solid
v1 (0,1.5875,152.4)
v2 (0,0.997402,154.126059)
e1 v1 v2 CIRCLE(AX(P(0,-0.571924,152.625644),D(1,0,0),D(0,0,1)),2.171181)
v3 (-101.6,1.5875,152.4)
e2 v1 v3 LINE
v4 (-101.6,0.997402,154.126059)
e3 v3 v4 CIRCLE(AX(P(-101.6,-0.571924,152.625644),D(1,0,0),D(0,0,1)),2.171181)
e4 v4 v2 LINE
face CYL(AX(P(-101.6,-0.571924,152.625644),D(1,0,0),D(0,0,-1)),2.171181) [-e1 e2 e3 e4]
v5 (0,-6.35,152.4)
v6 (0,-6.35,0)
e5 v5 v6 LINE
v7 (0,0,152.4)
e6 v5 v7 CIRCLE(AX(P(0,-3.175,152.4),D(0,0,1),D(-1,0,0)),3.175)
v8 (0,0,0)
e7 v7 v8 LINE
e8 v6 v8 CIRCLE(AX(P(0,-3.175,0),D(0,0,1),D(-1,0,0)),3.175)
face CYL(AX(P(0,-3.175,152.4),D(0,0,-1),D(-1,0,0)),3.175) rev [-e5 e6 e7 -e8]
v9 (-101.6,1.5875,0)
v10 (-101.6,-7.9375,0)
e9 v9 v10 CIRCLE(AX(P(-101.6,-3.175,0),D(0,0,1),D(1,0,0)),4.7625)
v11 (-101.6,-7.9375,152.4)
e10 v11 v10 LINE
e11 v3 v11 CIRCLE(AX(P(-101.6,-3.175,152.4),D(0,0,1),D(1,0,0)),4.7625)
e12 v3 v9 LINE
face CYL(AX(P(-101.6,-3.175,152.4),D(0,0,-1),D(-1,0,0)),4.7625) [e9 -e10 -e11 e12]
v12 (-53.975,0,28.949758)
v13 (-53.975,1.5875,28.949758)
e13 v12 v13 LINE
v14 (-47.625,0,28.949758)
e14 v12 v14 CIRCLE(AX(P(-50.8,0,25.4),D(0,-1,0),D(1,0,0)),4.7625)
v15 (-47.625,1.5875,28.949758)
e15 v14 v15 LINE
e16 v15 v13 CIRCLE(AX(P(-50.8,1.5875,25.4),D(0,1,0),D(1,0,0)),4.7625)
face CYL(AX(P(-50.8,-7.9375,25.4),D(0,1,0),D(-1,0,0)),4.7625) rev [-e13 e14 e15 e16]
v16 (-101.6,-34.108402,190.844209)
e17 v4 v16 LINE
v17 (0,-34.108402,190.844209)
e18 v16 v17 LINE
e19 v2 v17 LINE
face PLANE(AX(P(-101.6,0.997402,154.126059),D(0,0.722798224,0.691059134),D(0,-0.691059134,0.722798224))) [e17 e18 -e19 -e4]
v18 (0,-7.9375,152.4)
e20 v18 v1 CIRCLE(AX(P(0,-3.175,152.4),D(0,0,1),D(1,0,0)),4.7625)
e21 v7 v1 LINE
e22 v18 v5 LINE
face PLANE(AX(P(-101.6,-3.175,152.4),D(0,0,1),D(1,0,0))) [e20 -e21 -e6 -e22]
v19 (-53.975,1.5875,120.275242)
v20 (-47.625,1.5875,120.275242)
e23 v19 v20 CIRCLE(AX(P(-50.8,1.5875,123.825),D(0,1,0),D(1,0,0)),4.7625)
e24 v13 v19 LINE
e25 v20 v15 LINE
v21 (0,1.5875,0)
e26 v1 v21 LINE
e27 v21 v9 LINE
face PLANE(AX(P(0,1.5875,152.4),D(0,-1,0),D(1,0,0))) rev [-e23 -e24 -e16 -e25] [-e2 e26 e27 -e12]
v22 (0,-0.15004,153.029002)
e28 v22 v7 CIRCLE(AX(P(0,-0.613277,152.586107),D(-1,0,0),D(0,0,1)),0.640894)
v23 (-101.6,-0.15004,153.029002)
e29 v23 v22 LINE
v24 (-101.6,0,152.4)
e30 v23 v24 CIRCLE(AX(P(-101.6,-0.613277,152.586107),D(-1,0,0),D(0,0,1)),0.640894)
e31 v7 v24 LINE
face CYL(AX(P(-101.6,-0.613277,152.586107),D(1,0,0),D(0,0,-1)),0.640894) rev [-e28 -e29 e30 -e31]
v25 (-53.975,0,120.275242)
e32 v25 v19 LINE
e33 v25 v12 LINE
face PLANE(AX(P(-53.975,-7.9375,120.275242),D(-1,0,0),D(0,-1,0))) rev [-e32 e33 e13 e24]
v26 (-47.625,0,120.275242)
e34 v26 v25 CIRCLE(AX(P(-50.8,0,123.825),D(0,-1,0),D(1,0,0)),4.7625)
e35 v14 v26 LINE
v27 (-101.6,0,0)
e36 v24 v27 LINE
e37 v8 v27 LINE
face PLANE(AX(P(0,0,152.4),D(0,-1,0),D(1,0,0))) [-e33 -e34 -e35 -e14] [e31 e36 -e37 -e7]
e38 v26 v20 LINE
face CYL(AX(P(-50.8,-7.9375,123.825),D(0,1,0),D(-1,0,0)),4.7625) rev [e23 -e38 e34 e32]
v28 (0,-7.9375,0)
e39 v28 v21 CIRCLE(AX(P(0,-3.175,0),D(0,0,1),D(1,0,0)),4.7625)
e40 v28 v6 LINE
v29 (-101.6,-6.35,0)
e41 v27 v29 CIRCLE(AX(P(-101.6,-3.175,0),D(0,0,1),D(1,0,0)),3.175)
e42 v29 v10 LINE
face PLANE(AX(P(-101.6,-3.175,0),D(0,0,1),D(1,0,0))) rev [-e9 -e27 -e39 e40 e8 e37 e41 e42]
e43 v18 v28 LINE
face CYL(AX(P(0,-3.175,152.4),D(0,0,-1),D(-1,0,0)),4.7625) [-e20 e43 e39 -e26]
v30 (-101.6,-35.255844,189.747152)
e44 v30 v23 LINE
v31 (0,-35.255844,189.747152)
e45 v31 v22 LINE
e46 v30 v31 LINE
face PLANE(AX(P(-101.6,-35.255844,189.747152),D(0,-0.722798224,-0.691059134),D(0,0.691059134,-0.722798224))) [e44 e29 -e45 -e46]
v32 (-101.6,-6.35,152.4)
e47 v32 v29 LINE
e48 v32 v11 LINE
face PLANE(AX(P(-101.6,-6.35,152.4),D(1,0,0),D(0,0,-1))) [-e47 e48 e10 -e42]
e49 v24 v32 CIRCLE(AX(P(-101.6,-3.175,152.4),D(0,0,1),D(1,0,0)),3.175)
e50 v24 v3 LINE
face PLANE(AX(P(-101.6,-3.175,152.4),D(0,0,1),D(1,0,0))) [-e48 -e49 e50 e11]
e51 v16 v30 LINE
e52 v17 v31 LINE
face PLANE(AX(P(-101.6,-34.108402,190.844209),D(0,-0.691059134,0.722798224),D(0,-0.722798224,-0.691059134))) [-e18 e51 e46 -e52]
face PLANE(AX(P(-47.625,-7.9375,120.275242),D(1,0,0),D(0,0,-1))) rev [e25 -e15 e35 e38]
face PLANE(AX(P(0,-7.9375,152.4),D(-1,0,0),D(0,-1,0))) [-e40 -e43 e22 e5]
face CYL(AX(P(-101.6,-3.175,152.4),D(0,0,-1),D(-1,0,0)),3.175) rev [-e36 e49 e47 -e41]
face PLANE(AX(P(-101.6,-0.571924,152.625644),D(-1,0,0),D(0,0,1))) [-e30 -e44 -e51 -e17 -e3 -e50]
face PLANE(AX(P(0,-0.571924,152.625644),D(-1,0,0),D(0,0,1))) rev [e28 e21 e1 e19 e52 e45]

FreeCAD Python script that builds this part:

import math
import FreeCAD as App
import Part
import Sketcher
from FreeCAD import Vector
Q = App.Units.Quantity

doc = App.newDocument("Part")
body = doc.addObject("PartDesign::Body", "Body")

sketch1 = body.newObject("Sketcher::SketchObject", "Sketch")
sketch1.AttachmentSupport = (doc.getObject("XY_Plane"), [""])
sketch1.MapMode = "FlatFace"
sketch1.addGeometry(Part.ArcOfCircle(Part.Circle(Vector(0, -3.2, 0), Vector(0, 0, 1), 3.2), math.radians(-90), math.radians(90)), False)
sketch1.addGeometry(Part.LineSegment(Vector(0, -6.3, 0), Vector(0, -7.9, 0)), False)
sketch1.addGeometry(Part.ArcOfCircle(Part.Circle(Vector(0, -3.2, 0), Vector(0, 0, 1), 4.8), math.radians(-90), math.radians(90)), False)
sketch1.addGeometry(Part.LineSegment(Vector(0, 1.6, 0), Vector(-101.6, 1.6, 0)), False)
sketch1.addGeometry(Part.ArcOfCircle(Part.Circle(Vector(-101.6, -3.2, 0), Vector(0, 0, 1), 4.8), math.radians(90), math.radians(270)), False)
sketch1.addGeometry(Part.LineSegment(Vector(-101.6, -7.9, 0), Vector(-101.6, -6.3, 0)), False)
sketch1.addGeometry(Part.ArcOfCircle(Part.Circle(Vector(-101.6, -3.2, 0), Vector(0, 0, 1), 3.2), math.radians(90), math.radians(270)), False)
sketch1.addGeometry(Part.LineSegment(Vector(-101.6, 0, 0), Vector(0, 0, 0)), False)
sketch1.addConstraint(Sketcher.Constraint("Coincident", 0, 1, 1, 1))
sketch1.addConstraint(Sketcher.Constraint("Coincident", 1, 2, 2, 1))
sketch1.addConstraint(Sketcher.Constraint("Tangent", 2, 2, 3, 1))
sketch1.addConstraint(Sketcher.Constraint("Tangent", 3, 2, 4, 1))
sketch1.addConstraint(Sketcher.Constraint("Coincident", 4, 2, 5, 1))
sketch1.addConstraint(Sketcher.Constraint("Coincident", 5, 2, 6, 2))
sketch1.addConstraint(Sketcher.Constraint("Tangent", 6, 1, 7, 1))
sketch1.addConstraint(Sketcher.Constraint("Tangent", 7, 2, 0, 2))
sketch1.addConstraint(Sketcher.Constraint("Vertical", 1))
sketch1.addConstraint(Sketcher.Constraint("Horizontal", 3))
sketch1.addConstraint(Sketcher.Constraint("Vertical", 5))
sketch1.addConstraint(Sketcher.Constraint("Horizontal", 7))
sketch1.addConstraint(Sketcher.Constraint("Coincident", 7, 2, -1, 1))
sketch1.addConstraint(Sketcher.Constraint("Coincident", 2, 3, 0, 3))
sketch1.addConstraint(Sketcher.Constraint("Coincident", 6, 3, 4, 3))
sketch1.addConstraint(Sketcher.Constraint("Equal", 2, 4))
sketch1.addConstraint(Sketcher.Constraint("PointOnObject", 0, 1, -2))
sketch1.addConstraint(Sketcher.Constraint("Vertical", 3, 2, 4, 2))
sketch1.addConstraint(Sketcher.Constraint("DistanceX", 3, 2, 3, 1, Q("4 in")))
sketch1.addConstraint(Sketcher.Constraint("Radius", 0, Q("0.125 in")))
sketch1.addConstraint(Sketcher.Constraint("Radius", 2, Q("0.1875 in")))
pad1 = body.newObject("PartDesign::Pad", "Pad")
pad1.Profile = sketch1
pad1.Length = Q("6 in")

sketch2 = body.newObject("Sketcher::SketchObject", "Sketch001")
sketch2.AttachmentSupport = (doc.getObject("XZ_Plane"), [""])
sketch2.MapMode = "FlatFace"
sketch2.AttachmentOffset = App.Placement(Vector(0, 0, -0.0625 * 25.4), App.Rotation())
sketch2.addGeometry(Part.LineSegment(Vector(-54, 28.9, 0), Vector(-54, 120.3, 0)), False)
sketch2.addGeometry(Part.ArcOfCircle(Part.Circle(Vector(-50.8, 123.8, 0), Vector(0, 0, 1), 4.8), math.radians(-48), math.radians(228)), False)
sketch2.addGeometry(Part.LineSegment(Vector(-47.6, 120.3, 0), Vector(-47.6, 28.9, 0)), False)
sketch2.addGeometry(Part.ArcOfCircle(Part.Circle(Vector(-50.8, 25.4, 0), Vector(0, 0, 1), 4.8), math.radians(132), math.radians(408)), False)
sketch2.addConstraint(Sketcher.Constraint("Coincident", 0, 2, 1, 2))
sketch2.addConstraint(Sketcher.Constraint("Coincident", 1, 1, 2, 1))
sketch2.addConstraint(Sketcher.Constraint("Coincident", 2, 2, 3, 2))
sketch2.addConstraint(Sketcher.Constraint("Coincident", 3, 1, 0, 1))
sketch2.addConstraint(Sketcher.Constraint("Vertical", 0))
sketch2.addConstraint(Sketcher.Constraint("Vertical", 2))
sketch2.addConstraint(Sketcher.Constraint("Equal", 1, 3))
sketch2.addConstraint(Sketcher.Constraint("Horizontal", 0, 2, 1, 1))
sketch2.addConstraint(Sketcher.Constraint("Horizontal", 2, 2, 3, 1))
sketch2.addConstraint(Sketcher.Constraint("DistanceX", 1, 3, -1, 1, Q("2 in")))
sketch2.addConstraint(Sketcher.Constraint("DistanceY", -1, 1, 3, 3, Q("1 in")))
sketch2.addConstraint(Sketcher.Constraint("Radius", 1, Q("0.1875 in")))
sketch2.addConstraint(Sketcher.Constraint("DistanceX", 0, 2, 1, 1, Q("0.25 in")))
sketch2.addConstraint(Sketcher.Constraint("DistanceY", -1, 1, 1, 3, Q("4.875 in")))
pocket1 = body.newObject("PartDesign::Pocket", "Pocket")
pocket1.Profile = sketch2
pocket1.Type = "ThroughAll"
pocket1.Reversed = True

sketch3 = body.newObject("Sketcher::SketchObject", "Sketch002")
sketch3.AttachmentSupport = (doc.getObject("YZ_Plane"), [""])
sketch3.MapMode = "FlatFace"
sketch3.addGeometry(Part.LineSegment(Vector(1, 154.1, 0), Vector(-34.1, 190.8, 0)), False)
sketch3.addGeometry(Part.LineSegment(Vector(-34.1, 190.8, 0), Vector(-35.3, 189.7, 0)), False)
sketch3.addGeometry(Part.LineSegment(Vector(-35.3, 189.7, 0), Vector(-0.2, 153, 0)), False)
sketch3.addGeometry(Part.ArcOfCircle(Part.Circle(Vector(-0.6, 152.6, 0), Vector(0, 0, 1), 0.6), math.radians(-17), math.radians(44)), False)
sketch3.addGeometry(Part.LineSegment(Vector(0, 152.4, 0), Vector(1.6, 152.4, 0)), False)
sketch3.addGeometry(Part.ArcOfCircle(Part.Circle(Vector(-0.6, 152.6, 0), Vector(0, 0, 1), 2.2), math.radians(-6), math.radians(44)), False)
sketch3.addConstraint(Sketcher.Constraint("Coincident", 0, 2, 1, 1))
sketch3.addConstraint(Sketcher.Constraint("Coincident", 1, 2, 2, 1))
sketch3.addConstraint(Sketcher.Constraint("Tangent", 2, 2, 3, 2))
sketch3.addConstraint(Sketcher.Constraint("Coincident", 3, 1, 4, 1))
sketch3.addConstraint(Sketcher.Constraint("Coincident", 4, 2, 5, 1))
sketch3.addConstraint(Sketcher.Constraint("Tangent", 5, 2, 0, 1))
sketch3.addConstraint(Sketcher.Constraint("Horizontal", 4))
sketch3.addConstraint(Sketcher.Constraint("PointOnObject", 3, 1, -2))
sketch3.addConstraint(Sketcher.Constraint("Perpendicular", 0, 1))
sketch3.addConstraint(Sketcher.Constraint("Perpendicular", 1, 2))
sketch3.addConstraint(Sketcher.Constraint("Equal", 0, 2))
sketch3.addConstraint(Sketcher.Constraint("Distance", 0, Q("2 in")))
sketch3.addConstraint(Sketcher.Constraint("DistanceY", -1, 1, 3, 1, Q("6 in")))
sketch3.addConstraint(Sketcher.Constraint("DistanceX", 4, 1, 4, 2, Q("0.0625 in")))
sketch3.addConstraint(Sketcher.Constraint("Distance", 1, Q("0.0625 in")))
sketch3.addConstraint(Sketcher.Constraint("Radius", 5, 2.171181))
sketch3.addConstraint(Sketcher.Constraint("Radius", 3, 0.640894))
sketch3.addConstraint(Sketcher.Constraint("DistanceX", -1, 1, 5, 2, 0.997402))
pad2 = body.newObject("PartDesign::Pad", "Pad001")
pad2.Profile = sketch3
pad2.Length = Q("4 in")
pad2.Reversed = True

doc.recompute()
